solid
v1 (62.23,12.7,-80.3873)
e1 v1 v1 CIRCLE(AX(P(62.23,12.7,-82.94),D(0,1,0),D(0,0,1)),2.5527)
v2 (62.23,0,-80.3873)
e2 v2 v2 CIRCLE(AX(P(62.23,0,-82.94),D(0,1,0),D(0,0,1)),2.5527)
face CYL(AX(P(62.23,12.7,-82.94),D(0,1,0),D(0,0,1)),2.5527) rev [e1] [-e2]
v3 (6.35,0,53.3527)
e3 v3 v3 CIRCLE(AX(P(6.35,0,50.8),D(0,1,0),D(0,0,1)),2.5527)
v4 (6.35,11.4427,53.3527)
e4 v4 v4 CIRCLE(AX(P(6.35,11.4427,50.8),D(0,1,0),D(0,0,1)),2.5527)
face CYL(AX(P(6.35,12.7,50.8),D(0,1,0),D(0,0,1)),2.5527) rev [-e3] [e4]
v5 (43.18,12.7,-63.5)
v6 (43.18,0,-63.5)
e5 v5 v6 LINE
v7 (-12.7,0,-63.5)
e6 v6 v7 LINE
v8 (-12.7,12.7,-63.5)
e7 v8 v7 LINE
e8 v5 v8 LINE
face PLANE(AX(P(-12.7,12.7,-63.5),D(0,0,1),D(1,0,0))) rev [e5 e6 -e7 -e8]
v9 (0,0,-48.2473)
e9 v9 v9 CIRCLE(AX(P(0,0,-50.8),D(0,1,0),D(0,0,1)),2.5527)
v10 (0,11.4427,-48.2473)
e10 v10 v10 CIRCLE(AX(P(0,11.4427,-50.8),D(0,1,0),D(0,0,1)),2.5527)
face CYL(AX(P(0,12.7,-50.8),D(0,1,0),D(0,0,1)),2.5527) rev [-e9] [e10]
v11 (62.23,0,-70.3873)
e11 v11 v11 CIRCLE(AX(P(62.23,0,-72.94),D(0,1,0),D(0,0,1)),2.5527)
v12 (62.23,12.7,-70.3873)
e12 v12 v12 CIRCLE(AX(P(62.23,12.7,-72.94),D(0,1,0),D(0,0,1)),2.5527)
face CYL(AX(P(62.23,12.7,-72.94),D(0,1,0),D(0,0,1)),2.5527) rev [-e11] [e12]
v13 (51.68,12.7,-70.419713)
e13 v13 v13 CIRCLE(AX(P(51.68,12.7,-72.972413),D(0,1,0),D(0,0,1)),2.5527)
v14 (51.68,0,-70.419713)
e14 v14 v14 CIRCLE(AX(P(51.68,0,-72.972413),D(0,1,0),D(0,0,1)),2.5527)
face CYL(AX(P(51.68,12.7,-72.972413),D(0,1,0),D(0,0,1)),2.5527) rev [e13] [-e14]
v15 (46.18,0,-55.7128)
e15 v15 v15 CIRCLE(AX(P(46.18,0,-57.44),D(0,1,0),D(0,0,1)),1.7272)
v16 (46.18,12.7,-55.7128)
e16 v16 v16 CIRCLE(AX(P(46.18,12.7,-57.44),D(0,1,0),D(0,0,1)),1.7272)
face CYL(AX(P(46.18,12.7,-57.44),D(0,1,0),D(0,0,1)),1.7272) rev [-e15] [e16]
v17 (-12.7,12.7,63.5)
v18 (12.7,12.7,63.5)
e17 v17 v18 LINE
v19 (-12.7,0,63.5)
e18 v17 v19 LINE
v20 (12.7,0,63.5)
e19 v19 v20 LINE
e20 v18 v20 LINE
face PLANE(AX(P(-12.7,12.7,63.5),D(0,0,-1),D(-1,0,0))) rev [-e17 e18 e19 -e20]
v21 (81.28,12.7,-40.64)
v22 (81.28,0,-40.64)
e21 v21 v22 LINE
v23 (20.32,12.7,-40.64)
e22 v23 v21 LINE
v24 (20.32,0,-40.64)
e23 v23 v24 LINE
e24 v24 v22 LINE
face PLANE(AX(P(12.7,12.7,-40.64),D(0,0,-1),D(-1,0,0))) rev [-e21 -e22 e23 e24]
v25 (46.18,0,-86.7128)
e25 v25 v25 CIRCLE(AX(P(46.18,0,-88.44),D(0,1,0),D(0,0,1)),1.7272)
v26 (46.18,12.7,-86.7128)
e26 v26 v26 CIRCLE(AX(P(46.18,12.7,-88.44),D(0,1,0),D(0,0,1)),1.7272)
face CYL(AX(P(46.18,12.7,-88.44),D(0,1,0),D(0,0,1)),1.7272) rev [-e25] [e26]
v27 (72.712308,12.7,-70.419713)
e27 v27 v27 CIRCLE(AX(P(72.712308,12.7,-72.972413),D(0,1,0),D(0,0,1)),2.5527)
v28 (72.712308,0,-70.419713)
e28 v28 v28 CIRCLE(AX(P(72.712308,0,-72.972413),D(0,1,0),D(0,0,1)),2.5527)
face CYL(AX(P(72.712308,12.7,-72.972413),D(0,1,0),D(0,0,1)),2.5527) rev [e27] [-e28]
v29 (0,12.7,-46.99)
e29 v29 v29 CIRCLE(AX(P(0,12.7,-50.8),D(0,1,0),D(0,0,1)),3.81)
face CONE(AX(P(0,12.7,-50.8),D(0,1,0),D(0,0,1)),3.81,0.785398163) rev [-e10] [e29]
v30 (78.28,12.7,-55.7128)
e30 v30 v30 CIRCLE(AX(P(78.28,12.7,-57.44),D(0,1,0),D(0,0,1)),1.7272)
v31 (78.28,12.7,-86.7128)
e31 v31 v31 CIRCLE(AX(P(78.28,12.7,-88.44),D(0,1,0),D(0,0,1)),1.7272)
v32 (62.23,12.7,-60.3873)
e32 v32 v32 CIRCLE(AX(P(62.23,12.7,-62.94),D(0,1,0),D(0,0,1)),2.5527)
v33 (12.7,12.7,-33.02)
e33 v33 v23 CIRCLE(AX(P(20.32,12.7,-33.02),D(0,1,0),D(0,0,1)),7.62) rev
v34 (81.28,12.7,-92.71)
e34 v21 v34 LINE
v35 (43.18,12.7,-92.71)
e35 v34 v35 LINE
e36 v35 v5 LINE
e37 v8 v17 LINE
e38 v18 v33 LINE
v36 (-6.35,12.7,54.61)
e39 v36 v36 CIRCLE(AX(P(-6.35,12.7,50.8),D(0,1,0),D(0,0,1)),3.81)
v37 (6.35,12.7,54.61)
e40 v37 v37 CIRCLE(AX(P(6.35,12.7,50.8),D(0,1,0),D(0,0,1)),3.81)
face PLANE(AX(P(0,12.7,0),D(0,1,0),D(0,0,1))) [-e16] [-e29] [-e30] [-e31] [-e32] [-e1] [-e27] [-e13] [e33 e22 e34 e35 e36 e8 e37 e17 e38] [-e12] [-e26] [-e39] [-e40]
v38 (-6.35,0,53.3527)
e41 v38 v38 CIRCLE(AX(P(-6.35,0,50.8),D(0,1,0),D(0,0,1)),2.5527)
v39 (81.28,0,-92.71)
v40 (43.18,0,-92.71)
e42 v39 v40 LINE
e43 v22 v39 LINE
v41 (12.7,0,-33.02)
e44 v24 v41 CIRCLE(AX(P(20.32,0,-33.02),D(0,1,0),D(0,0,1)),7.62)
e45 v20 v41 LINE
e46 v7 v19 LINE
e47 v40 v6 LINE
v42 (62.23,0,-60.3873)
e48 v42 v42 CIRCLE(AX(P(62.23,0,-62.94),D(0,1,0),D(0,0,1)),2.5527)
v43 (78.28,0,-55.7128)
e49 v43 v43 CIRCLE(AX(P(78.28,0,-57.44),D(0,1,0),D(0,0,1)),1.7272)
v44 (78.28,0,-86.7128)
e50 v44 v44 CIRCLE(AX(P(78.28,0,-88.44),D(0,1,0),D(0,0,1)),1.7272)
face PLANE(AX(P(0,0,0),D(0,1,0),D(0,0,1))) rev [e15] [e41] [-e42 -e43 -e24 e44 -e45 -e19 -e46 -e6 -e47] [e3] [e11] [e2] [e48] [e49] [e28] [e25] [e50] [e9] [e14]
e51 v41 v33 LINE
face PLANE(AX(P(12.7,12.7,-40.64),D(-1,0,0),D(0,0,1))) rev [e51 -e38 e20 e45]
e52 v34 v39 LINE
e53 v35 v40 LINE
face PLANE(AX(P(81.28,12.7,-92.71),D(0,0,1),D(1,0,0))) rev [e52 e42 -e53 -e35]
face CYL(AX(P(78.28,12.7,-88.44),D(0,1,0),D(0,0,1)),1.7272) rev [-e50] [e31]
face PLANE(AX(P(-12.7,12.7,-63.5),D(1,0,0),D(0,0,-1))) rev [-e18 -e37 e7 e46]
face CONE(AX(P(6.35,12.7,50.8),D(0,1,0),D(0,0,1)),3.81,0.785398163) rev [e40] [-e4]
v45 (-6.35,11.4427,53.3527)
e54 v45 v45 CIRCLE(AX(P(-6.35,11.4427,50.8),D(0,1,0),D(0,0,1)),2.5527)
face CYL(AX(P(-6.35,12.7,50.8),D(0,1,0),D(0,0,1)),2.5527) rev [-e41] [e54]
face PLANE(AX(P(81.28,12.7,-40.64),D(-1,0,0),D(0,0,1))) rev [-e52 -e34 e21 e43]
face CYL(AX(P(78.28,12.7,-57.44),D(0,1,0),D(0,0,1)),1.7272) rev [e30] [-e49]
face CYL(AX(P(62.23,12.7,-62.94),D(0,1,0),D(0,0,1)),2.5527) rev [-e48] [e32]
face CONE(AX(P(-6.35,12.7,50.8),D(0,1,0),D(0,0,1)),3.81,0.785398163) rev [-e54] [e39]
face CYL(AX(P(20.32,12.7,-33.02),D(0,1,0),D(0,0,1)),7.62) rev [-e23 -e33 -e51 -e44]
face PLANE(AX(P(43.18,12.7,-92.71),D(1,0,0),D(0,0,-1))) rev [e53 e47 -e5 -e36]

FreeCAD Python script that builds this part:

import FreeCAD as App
import Part
import Sketcher
from FreeCAD import Vector
Q = App.Units.Quantity


def edges_at(feature, points):
    """Names of the edges that pass closest to the given points."""
    edges = feature.Shape.Edges
    near = lambda p: min(range(len(edges)), key=lambda i: edges[i].distToShape(Part.Vertex(*p))[0])
    return sorted({f"Edge{near(p) + 1}" for p in points})


def add_polygon(sketch, points):
    """Adds a closed chain of lines whose ends are joined by coincident constraints."""
    first, n = sketch.GeometryCount, len(points)
    for a, b in zip(points, points[1:] + points[:1]):
        sketch.addGeometry(Part.LineSegment(App.Vector(*a, 0), App.Vector(*b, 0)), False)
    for i in range(n):
        sketch.addConstraint(Sketcher.Constraint("Coincident", first + i, 2, first + (i + 1) % n, 1))

doc = App.newDocument("Part")
params = doc.addObject("Spreadsheet::Sheet", "Params")
for row, (alias, value) in enumerate([
    ("sketch1_width", "1 in"),
    ("sketch1_height", "5 in"),
    ("sketch1_width2", "1.5 in"),
    ("sketch1_width3", "2.2 in"),
    ("sketch1_height2", "4.1 in"),
    ("pad1_length", "0.5 in"),
    ("sketch2_diameter", "0.201 in"),
    ("hole_diameter", "0.201 in"),
    ("hole_depth", "0.5 in"),
    ("hole_csink_diameter", "0.3 in"),
    ("sketch3_diameter", "0.201 in"),
    ("hole2_diameter", "0.201 in"),
    ("hole2_depth", "0.5 in"),
    ("hole2_csink_diameter", "0.3 in"),
    ("sketch4_diameter", "0.136 in"),
    ("hole3_diameter", "0.136 in"),
    ("hole3_depth", "0.5 in"),
    ("sketch5_diameter", "0.201 in"),
    ("hole4_diameter", "0.201 in"),
    ("hole4_depth", "0.5 in"),
    ("linearpattern_pitch", "10 mm"),
    ("sketch6_diameter", "0.201 in"),
    ("hole5_diameter", "0.201 in"),
    ("hole5_depth", "0.5 in"),
    ("fillet_radius", "0.3 in"),
], start=1):
    params.set(f"A{row}", alias)
    params.set(f"B{row}", "=" + value)
    params.setAlias(f"B{row}", alias)

body = doc.addObject("PartDesign::Body", "Body")

# Sketch on XZ plane
sketch1 = body.newObject("Sketcher::SketchObject", "Sketch")
sketch1.AttachmentSupport = (doc.getObject("XZ_Plane"), [""])
sketch1.MapMode = "FlatFace"
add_polygon(sketch1, [(81.28, -40.64), (81.28, -92.71), (43.18, -92.71), (43.18, -63.5), (-12.7, -63.5), (-12.7, 63.5), (12.7, 63.5), (12.7, -40.64)])  # lines 0-7
sketch1.addConstraint(Sketcher.Constraint("Vertical", 0))
sketch1.addConstraint(Sketcher.Constraint("Horizontal", 1))
sketch1.addConstraint(Sketcher.Constraint("Vertical", 2))
sketch1.addConstraint(Sketcher.Constraint("Horizontal", 3))
sketch1.addConstraint(Sketcher.Constraint("Vertical", 4))
sketch1.addConstraint(Sketcher.Constraint("Horizontal", 5))
sketch1.addConstraint(Sketcher.Constraint("Vertical", 6))
sketch1.addConstraint(Sketcher.Constraint("Horizontal", 7))
sketch1.addConstraint(Sketcher.Constraint("Symmetric", 3, 2, 5, 2, -1, 1))
sketch1.addConstraint(Sketcher.Constraint("DistanceX", 5, 1, 5, 2, Q("1 in")))
sketch1.addConstraint(Sketcher.Constraint("DistanceY", 4, 1, 4, 2, Q("5 in")))
sketch1.addConstraint(Sketcher.Constraint("DistanceX", 1, 2, 1, 1, Q("1.5 in")))
sketch1.addConstraint(Sketcher.Constraint("DistanceX", 3, 2, 3, 1, Q("2.2 in")))
sketch1.addConstraint(Sketcher.Constraint("DistanceY", 6, 2, 6, 1, Q("4.1 in")))
sketch1.addConstraint(Sketcher.Constraint("DistanceY", 0, 2, 0, 1, Q("2.05 in")))
sketch1.setExpression("Constraints[17]", "Params.sketch1_width")
sketch1.setExpression("Constraints[18]", "Params.sketch1_height")
sketch1.setExpression("Constraints[19]", "Params.sketch1_width2")
sketch1.setExpression("Constraints[20]", "Params.sketch1_width3")
sketch1.setExpression("Constraints[21]", "Params.sketch1_height2")
pad1 = body.newObject("PartDesign::Pad", "Pad")
pad1.Profile = sketch1
pad1.setExpression("Length", "Params.pad1_length")
pad1.Reversed = True

# Sketch on XZ plane
sketch2 = body.newObject("Sketcher::SketchObject", "Sketch001")
sketch2.AttachmentSupport = (doc.getObject("XZ_Plane"), [""])
sketch2.MapMode = "FlatFace"
sketch2.AttachmentOffset = App.Placement(Vector(0, 0, -0.5 * 25.4), App.Rotation())
sketch2.addGeometry(Part.Circle(Vector(-6.35, 50.8, 0), Vector(0, 0, 1), 2.5527), False)
sketch2.addGeometry(Part.Circle(Vector(6.35, 50.8, 0), Vector(0, 0, 1), 2.5527), False)
sketch2.addConstraint(Sketcher.Constraint("Equal", 0, 1))
sketch2.addConstraint(Sketcher.Constraint("Symmetric", 0, 3, 1, 3, -2))
sketch2.addConstraint(Sketcher.Constraint("Diameter", 0, Q("0.201 in")))
sketch2.addConstraint(Sketcher.Constraint("DistanceY", -1, 1, 0, 3, Q("2 in")))
sketch2.addConstraint(Sketcher.Constraint("DistanceX", 0, 3, 1, 3, Q("0.5 in")))
sketch2.setExpression("Constraints[2]", "Params.sketch2_diameter")
doc.recompute()
hole = body.newObject("PartDesign::Hole", "Hole")
hole.Profile = sketch2
hole.ThreadType = "None"
hole.setExpression("Diameter", "Params.hole_diameter")
hole.DepthType = "Dimension"
hole.setExpression("Depth", "Params.hole_depth")
hole.DrillPoint = "Flat"
hole.HoleCutType = "Countersink"
hole.setExpression("HoleCutDiameter", "Params.hole_csink_diameter")
hole.HoleCutCountersinkAngle = 90
hole.Reversed = True

# Sketch on XZ plane
sketch3 = body.newObject("Sketcher::SketchObject", "Sketch002")
sketch3.AttachmentSupport = (doc.getObject("XZ_Plane"), [""])
sketch3.MapMode = "FlatFace"
sketch3.AttachmentOffset = App.Placement(Vector(0, 0, -0.5 * 25.4), App.Rotation())
sketch3.addGeometry(Part.Circle(Vector(0, -50.8, 0), Vector(0, 0, 1), 2.5527), False)
sketch3.addConstraint(Sketcher.Constraint("PointOnObject", 0, 3, -2))
sketch3.addConstraint(Sketcher.Constraint("Diameter", 0, Q("0.201 in")))
sketch3.addConstraint(Sketcher.Constraint("DistanceY", 0, 3, -1, 1, Q("2 in")))
sketch3.setExpression("Constraints[1]", "Params.sketch3_diameter")
doc.recompute()
hole2 = body.newObject("PartDesign::Hole", "Hole001")
hole2.Profile = sketch3
hole2.ThreadType = "None"
hole2.setExpression("Diameter", "Params.hole2_diameter")
hole2.DepthType = "Dimension"
hole2.setExpression("Depth", "Params.hole2_depth")
hole2.DrillPoint = "Flat"
hole2.HoleCutType = "Countersink"
hole2.setExpression("HoleCutDiameter", "Params.hole2_csink_diameter")
hole2.HoleCutCountersinkAngle = 90
hole2.Reversed = True

# Sketch on XZ plane
sketch4 = body.newObject("Sketcher::SketchObject", "Sketch003")
sketch4.AttachmentSupport = (doc.getObject("XZ_Plane"), [""])
sketch4.MapMode = "FlatFace"
sketch4.AttachmentOffset = App.Placement(Vector(0, 0, -0.5 * 25.4), App.Rotation())
sketch4.addGeometry(Part.Circle(Vector(46.18, -88.44, 0), Vector(0, 0, 1), 1.7272), False)
sketch4.addGeometry(Part.Circle(Vector(78.28, -88.44, 0), Vector(0, 0, 1), 1.7272), False)
sketch4.addGeometry(Part.Circle(Vector(46.18, -57.44, 0), Vector(0, 0, 1), 1.7272), False)
sketch4.addGeometry(Part.Circle(Vector(78.28, -57.44, 0), Vector(0, 0, 1), 1.7272), False)
sketch4.addConstraint(Sketcher.Constraint("Equal", 0, 1))
sketch4.addConstraint(Sketcher.Constraint("Equal", 1, 2))
sketch4.addConstraint(Sketcher.Constraint("Equal", 2, 3))
sketch4.addConstraint(Sketcher.Constraint("Horizontal", 0, 3, 1, 3))
sketch4.addConstraint(Sketcher.Constraint("Horizontal", 2, 3, 3, 3))
sketch4.addConstraint(Sketcher.Constraint("Vertical", 0, 3, 2, 3))
sketch4.addConstraint(Sketcher.Constraint("Vertical", 1, 3, 3, 3))
sketch4.addConstraint(Sketcher.Constraint("Diameter", 0, Q("0.136 in")))
sketch4.addConstraint(Sketcher.Constraint("DistanceX", -1, 1, 0, 3, 46.18))
sketch4.addConstraint(Sketcher.Constraint("DistanceY", 0, 3, -1, 1, 88.44))
sketch4.addConstraint(Sketcher.Constraint("DistanceX", -1, 1, 1, 3, 78.28))
sketch4.addConstraint(Sketcher.Constraint("DistanceY", 2, 3, -1, 1, 57.44))
sketch4.setExpression("Constraints[7]", "Params.sketch4_diameter")
doc.recompute()
hole3 = body.newObject("PartDesign::Hole", "Hole002")
hole3.Profile = sketch4
hole3.ThreadType = "None"
hole3.setExpression("Diameter", "Params.hole3_diameter")
hole3.DepthType = "Dimension"
hole3.setExpression("Depth", "Params.hole3_depth")
hole3.DrillPoint = "Flat"
hole3.Reversed = True

# Sketch on XZ plane
sketch5 = body.newObject("Sketcher::SketchObject", "Sketch004")
sketch5.AttachmentSupport = (doc.getObject("XZ_Plane"), [""])
sketch5.MapMode = "FlatFace"
sketch5.AttachmentOffset = App.Placement(Vector(0, 0, -0.5 * 25.4), App.Rotation())
sketch5.addGeometry(Part.Circle(Vector(62.23, -82.94, 0), Vector(0, 0, 1), 2.5527), False)
sketch5.addConstraint(Sketcher.Constraint("Diameter", 0, Q("0.201 in")))
sketch5.addConstraint(Sketcher.Constraint("DistanceX", -1, 1, 0, 3, Q("2.45 in")))
sketch5.addConstraint(Sketcher.Constraint("DistanceY", 0, 3, -1, 1, 82.94))
sketch5.setExpression("Constraints[0]", "Params.sketch5_diameter")
doc.recompute()
hole4 = body.newObject("PartDesign::Hole", "Hole003")
hole4.Profile = sketch5
hole4.ThreadType = "None"
hole4.setExpression("Diameter", "Params.hole4_diameter")
hole4.DepthType = "Dimension"
hole4.setExpression("Depth", "Params.hole4_depth")
hole4.DrillPoint = "Flat"
hole4.Reversed = True
doc.recompute()

linearpattern = body.newObject("PartDesign::LinearPattern", "LinearPattern")
linearpattern.Originals = [hole4]
linearpattern.Direction = (doc.getObject("Z_Axis"), [""])
linearpattern.Mode = "offset"
linearpattern.setExpression("Offset", "Params.linearpattern_pitch")
linearpattern.Occurrences = 3
body.Tip = linearpattern

# Sketch on XZ plane
sketch6 = body.newObject("Sketcher::SketchObject", "Sketch005")
sketch6.AttachmentSupport = (doc.getObject("XZ_Plane"), [""])
sketch6.MapMode = "FlatFace"
sketch6.AttachmentOffset = App.Placement(Vector(0, 0, -0.5 * 25.4), App.Rotation())
sketch6.addGeometry(Part.Circle(Vector(51.68, -72.972413, 0), Vector(0, 0, 1), 2.5527), False)
sketch6.addGeometry(Part.Circle(Vector(72.712308, -72.972413, 0), Vector(0, 0, 1), 2.5527), False)
sketch6.addConstraint(Sketcher.Constraint("Equal", 0, 1))
sketch6.addConstraint(Sketcher.Constraint("Horizontal", 0, 3, 1, 3))
sketch6.addConstraint(Sketcher.Constraint("Diameter", 0, Q("0.201 in")))
sketch6.addConstraint(Sketcher.Constraint("DistanceX", -1, 1, 0, 3, 51.68))
sketch6.addConstraint(Sketcher.Constraint("DistanceY", 0, 3, -1, 1, 72.972413))
sketch6.addConstraint(Sketcher.Constraint("DistanceX", -1, 1, 1, 3, 72.712308))
sketch6.setExpression("Constraints[2]", "Params.sketch6_diameter")
doc.recompute()
hole5 = body.newObject("PartDesign::Hole", "Hole004")
hole5.Profile = sketch6
hole5.ThreadType = "None"
hole5.setExpression("Diameter", "Params.hole5_diameter")
hole5.DepthType = "Dimension"
hole5.setExpression("Depth", "Params.hole5_depth")
hole5.DrillPoint = "Flat"
hole5.Reversed = True
doc.recompute()

fillet = body.newObject("PartDesign::Fillet", "Fillet")
fillet.Base = (hole5, edges_at(hole5, [(12.7, 6.35, -40.64)]))
fillet.setExpression("Radius", "Params.fillet_radius")

doc.recompute()
